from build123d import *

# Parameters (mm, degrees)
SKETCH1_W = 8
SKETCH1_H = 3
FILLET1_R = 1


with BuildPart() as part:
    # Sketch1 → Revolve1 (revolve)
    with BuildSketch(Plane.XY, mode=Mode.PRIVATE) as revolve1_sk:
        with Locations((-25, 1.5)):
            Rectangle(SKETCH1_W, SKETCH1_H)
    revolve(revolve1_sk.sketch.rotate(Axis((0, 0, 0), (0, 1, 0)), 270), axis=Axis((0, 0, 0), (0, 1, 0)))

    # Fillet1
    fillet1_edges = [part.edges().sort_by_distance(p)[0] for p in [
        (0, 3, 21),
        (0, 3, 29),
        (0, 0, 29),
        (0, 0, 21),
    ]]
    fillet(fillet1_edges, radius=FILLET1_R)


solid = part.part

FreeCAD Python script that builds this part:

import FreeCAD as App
import Part
import Sketcher
from FreeCAD import Vector
Q = App.Units.Quantity


def edges_at(feature, points):
    """Names of the edges that pass closest to the given points."""
    edges = feature.Shape.Edges
    near = lambda p: min(range(len(edges)), key=lambda i: edges[i].distToShape(Part.Vertex(*p))[0])
    return sorted({f"Edge{near(p) + 1}" for p in points})


def add_polygon(sketch, points):
    """Adds a closed chain of lines whose ends are joined by coincident constraints."""
    first, n = sketch.GeometryCount, len(points)
    for a, b in zip(points, points[1:] + points[:1]):
        sketch.addGeometry(Part.LineSegment(App.Vector(*a, 0), App.Vector(*b, 0)), False)
    for i in range(n):
        sketch.addConstraint(Sketcher.Constraint("Coincident", first + i, 2, first + (i + 1) % n, 1))

doc = App.newDocument("Part")
params = doc.addObject("Spreadsheet::Sheet", "Params")
for row, (alias, value) in enumerate([
    ("sketch1_width", "8 mm"),
    ("sketch1_height", "3 mm"),
    ("revolution_angle", "360 deg"),
    ("fillet_radius", "1 mm"),
], start=1):
    params.set(f"A{row}", alias)
    params.set(f"B{row}", "=" + value)
    params.setAlias(f"B{row}", alias)

body = doc.addObject("PartDesign::Body", "Body")

# Sketch on XY plane
sketch1 = body.newObject("Sketcher::SketchObject", "Sketch")
sketch1.AttachmentSupport = (doc.getObject("XY_Plane"), [""])
sketch1.MapMode = "FlatFace"
add_polygon(sketch1, [(-29, 3), (-29, 0), (-21, 0), (-21, 3)])  # lines 0-3
sketch1.addConstraint([
    Sketcher.Constraint("Vertical", 0),
    Sketcher.Constraint("Horizontal", 1),
    Sketcher.Constraint("Vertical", 2),
    Sketcher.Constraint("Horizontal", 3),
    Sketcher.Constraint("PointOnObject", 0, 2, -1),
    Sketcher.Constraint("DistanceX", 1, 1, 1, 2, Q("8 mm")),
    Sketcher.Constraint("DistanceY", 0, 2, 0, 1, Q("3 mm")),
    Sketcher.Constraint("DistanceX", 0, 2, -1, 1, Q("29 mm")),
])
sketch1.setExpression("Constraints[9]", "Params.sketch1_width")
sketch1.setExpression("Constraints[10]", "Params.sketch1_height")
revolution = body.newObject("PartDesign::Revolution", "Revolution")
revolution.Profile = sketch1
revolution.ReferenceAxis = (sketch1, ["V_Axis"])
revolution.setExpression("Angle", "Params.revolution_angle")
doc.recompute()

fillet = body.newObject("PartDesign::Fillet", "Fillet")
fillet.Base = (revolution, edges_at(revolution, [
    (0, 3, 21),
    (0, 3, 29),
    (0, 0, 29),
    (0, 0, 21),
]))
fillet.setExpression("Radius", "Params.fillet_radius")

doc.recompute()
